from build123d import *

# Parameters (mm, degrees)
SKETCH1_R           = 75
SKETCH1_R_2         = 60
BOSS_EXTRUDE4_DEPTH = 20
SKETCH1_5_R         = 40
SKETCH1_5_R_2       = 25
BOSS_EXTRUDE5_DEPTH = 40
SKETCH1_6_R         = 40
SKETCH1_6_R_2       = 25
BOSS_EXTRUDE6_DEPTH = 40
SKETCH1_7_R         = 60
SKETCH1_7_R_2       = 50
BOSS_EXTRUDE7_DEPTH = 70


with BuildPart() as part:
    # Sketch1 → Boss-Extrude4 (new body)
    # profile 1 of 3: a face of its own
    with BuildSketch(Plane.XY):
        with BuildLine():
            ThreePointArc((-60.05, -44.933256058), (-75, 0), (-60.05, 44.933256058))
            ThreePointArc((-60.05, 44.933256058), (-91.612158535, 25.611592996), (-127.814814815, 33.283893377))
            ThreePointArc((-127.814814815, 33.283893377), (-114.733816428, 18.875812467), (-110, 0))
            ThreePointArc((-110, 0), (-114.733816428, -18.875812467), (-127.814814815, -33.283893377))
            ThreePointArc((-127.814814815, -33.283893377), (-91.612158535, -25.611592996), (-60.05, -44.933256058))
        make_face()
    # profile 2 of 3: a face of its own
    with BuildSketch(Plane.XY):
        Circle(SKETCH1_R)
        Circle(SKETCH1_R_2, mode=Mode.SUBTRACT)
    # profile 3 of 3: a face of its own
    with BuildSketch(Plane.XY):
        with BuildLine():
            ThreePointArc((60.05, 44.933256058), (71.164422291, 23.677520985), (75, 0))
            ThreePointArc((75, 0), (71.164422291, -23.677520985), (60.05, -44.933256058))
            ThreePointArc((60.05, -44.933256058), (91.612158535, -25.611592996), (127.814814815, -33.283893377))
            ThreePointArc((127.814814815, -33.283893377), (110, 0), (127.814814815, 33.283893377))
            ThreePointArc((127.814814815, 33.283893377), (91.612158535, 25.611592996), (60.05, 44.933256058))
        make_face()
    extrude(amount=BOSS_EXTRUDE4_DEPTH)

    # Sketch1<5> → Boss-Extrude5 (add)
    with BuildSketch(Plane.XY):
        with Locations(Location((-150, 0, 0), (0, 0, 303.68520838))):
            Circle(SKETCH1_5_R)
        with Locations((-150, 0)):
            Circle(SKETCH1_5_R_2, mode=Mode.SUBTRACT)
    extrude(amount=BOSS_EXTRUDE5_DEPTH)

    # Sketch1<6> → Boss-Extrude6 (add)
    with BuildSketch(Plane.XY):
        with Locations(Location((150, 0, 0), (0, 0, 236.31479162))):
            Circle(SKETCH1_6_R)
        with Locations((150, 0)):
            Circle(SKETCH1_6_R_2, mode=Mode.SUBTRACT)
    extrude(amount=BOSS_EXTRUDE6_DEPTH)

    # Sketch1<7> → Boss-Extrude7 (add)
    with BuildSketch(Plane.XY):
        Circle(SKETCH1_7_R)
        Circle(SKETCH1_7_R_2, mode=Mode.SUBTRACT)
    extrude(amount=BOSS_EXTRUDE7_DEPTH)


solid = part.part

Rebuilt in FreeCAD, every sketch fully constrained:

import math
import FreeCAD as App
import Part
import Sketcher
from FreeCAD import Vector
Q = App.Units.Quantity

doc = App.newDocument("Part")
params = doc.addObject("Spreadsheet::Sheet", "Params")
for row, (alias, value) in enumerate([
    ("sketch1_diameter", "120 mm"),
    ("sketch1_radius", "50 mm"),
    ("sketch1_radius2", "40 mm"),
    ("sketch1_radius3", "75 mm"),
    ("pad1_length", "20 mm"),
    ("sketch2_diameter", "80 mm"),
    ("sketch2_diameter2", "50 mm"),
    ("pad2_length", "40 mm"),
    ("sketch3_diameter", "80 mm"),
    ("sketch3_diameter2", "50 mm"),
    ("pad3_length", "40 mm"),
    ("sketch4_diameter", "120 mm"),
    ("sketch4_diameter2", "100 mm"),
    ("pad4_length", "70 mm"),
], start=1):
    params.set(f"A{row}", alias)
    params.set(f"B{row}", "=" + value)
    params.setAlias(f"B{row}", alias)

body = doc.addObject("PartDesign::Body", "Body")

# Sketch on XY plane
sketch1 = doc.addObject("Sketcher::SketchObject", "Sketch")
body.addObject(sketch1)
sketch1.AttachmentSupport = (doc.XY_Plane, [""])
sketch1.MapMode = "FlatFace"
sketch1.addGeometry(Part.ArcOfCircle(Part.Circle(Vector(-100.083333, 74.88876, 0), Vector(0, 0, 1), 50), math.radians(-123.685208), math.radians(-36.806188)), False)
sketch1.addGeometry(Part.ArcOfCircle(Part.Circle(Vector(-150, 0, 0), Vector(0, 0, 1), 40), math.radians(0), math.radians(56.314792)), False)
sketch1.addGeometry(Part.ArcOfCircle(Part.Circle(Vector(-150, 0, 0), Vector(0, 0, 1), 40), math.radians(-56.314792), math.radians(0)), False)
sketch1.addGeometry(Part.ArcOfCircle(Part.Circle(Vector(-100.083333, -74.88876, 0), Vector(0, 0, 1), 50), math.radians(36.806188), math.radians(123.685208)), False)
sketch1.addGeometry(Part.ArcOfCircle(Part.Circle(Vector(0, 0, 0), Vector(0, 0, 1), 75), math.radians(-143.193812), math.radians(-36.806188)), False)
sketch1.addGeometry(Part.ArcOfCircle(Part.Circle(Vector(100.083333, -74.88876, 0), Vector(0, 0, 1), 50), math.radians(56.314792), math.radians(143.193812)), False)
sketch1.addGeometry(Part.ArcOfCircle(Part.Circle(Vector(150, 0, 0), Vector(0, 0, 1), 40), math.radians(123.685208), math.radians(236.314792)), False)
sketch1.addGeometry(Part.ArcOfCircle(Part.Circle(Vector(100.083333, 74.88876, 0), Vector(0, 0, 1), 50), math.radians(-143.193812), math.radians(-56.314792)), False)
sketch1.addGeometry(Part.ArcOfCircle(Part.Circle(Vector(0, 0, 0), Vector(0, 0, 1), 75), math.radians(36.806188), math.radians(143.193812)), False)
sketch1.addGeometry(Part.Circle(Vector(0, 0, 0), Vector(0, 0, 1), 60), False)
sketch1.addConstraint(Sketcher.Constraint("Tangent", 0, 1, 1, 2))
sketch1.addConstraint(Sketcher.Constraint("Tangent", 1, 1, 2, 2))
sketch1.addConstraint(Sketcher.Constraint("Tangent", 2, 1, 3, 2))
sketch1.addConstraint(Sketcher.Constraint("Tangent", 3, 1, 4, 1))
sketch1.addConstraint(Sketcher.Constraint("Tangent", 4, 2, 5, 2))
sketch1.addConstraint(Sketcher.Constraint("Tangent", 5, 1, 6, 2))
sketch1.addConstraint(Sketcher.Constraint("Tangent", 6, 1, 7, 2))
sketch1.addConstraint(Sketcher.Constraint("Tangent", 7, 1, 8, 1))
sketch1.addConstraint(Sketcher.Constraint("Tangent", 8, 2, 0, 2))
sketch1.addConstraint(Sketcher.Constraint("Coincident", 4, 3, -1, 1))
sketch1.addConstraint(Sketcher.Constraint("Coincident", 8, 3, -1, 1))
sketch1.addConstraint(Sketcher.Constraint("Coincident", 9, 3, -1, 1))
sketch1.addConstraint(Sketcher.Constraint("Equal", 1, 2))
sketch1.addConstraint(Sketcher.Constraint("Equal", 0, 3))
sketch1.addConstraint(Sketcher.Constraint("Equal", 3, 5))
sketch1.addConstraint(Sketcher.Constraint("Equal", 2, 6))
sketch1.addConstraint(Sketcher.Constraint("Equal", 5, 7))
sketch1.addConstraint(Sketcher.Constraint("Equal", 4, 8))
sketch1.addConstraint(Sketcher.Constraint("Symmetric", 1, 3, 6, 3, -1, 1))
sketch1.addConstraint(Sketcher.Constraint("PointOnObject", 1, 3, -1))
sketch1.addConstraint(Sketcher.Constraint("PointOnObject", 1, 1, -1))
sketch1.addConstraint(Sketcher.Constraint("Diameter", 9, Q("120 mm")))
sketch1.addConstraint(Sketcher.Constraint("Radius", 0, Q("50 mm")))
sketch1.addConstraint(Sketcher.Constraint("Radius", 1, Q("40 mm")))
sketch1.addConstraint(Sketcher.Constraint("Radius", 4, Q("75 mm")))
sketch1.addConstraint(Sketcher.Constraint("DistanceX", 1, 3, -1, 1, Q("150 mm")))
sketch1.setExpression("Constraints[21]", "Params.sketch1_diameter")
sketch1.setExpression("Constraints[22]", "Params.sketch1_radius")
sketch1.setExpression("Constraints[23]", "Params.sketch1_radius2")
sketch1.setExpression("Constraints[24]", "Params.sketch1_radius3")
pad1 = doc.addObject("PartDesign::Pad", "Pad")
body.addObject(pad1)
pad1.Profile = sketch1
pad1.setExpression("Length", "Params.pad1_length")

# Sketch on XY plane
sketch2 = doc.addObject("Sketcher::SketchObject", "Sketch001")
body.addObject(sketch2)
sketch2.AttachmentSupport = (doc.XY_Plane, [""])
sketch2.MapMode = "FlatFace"
sketch2.addGeometry(Part.Circle(Vector(-150, 0, 0), Vector(0, 0, 1), 40), False)
sketch2.addGeometry(Part.Circle(Vector(-150, 0, 0), Vector(0, 0, 1), 25), False)
sketch2.addConstraint(Sketcher.Constraint("Coincident", 1, 3, 0, 3))
sketch2.addConstraint(Sketcher.Constraint("PointOnObject", 0, 3, -1))
sketch2.addConstraint(Sketcher.Constraint("Diameter", 0, Q("80 mm")))
sketch2.addConstraint(Sketcher.Constraint("Diameter", 1, Q("50 mm")))
sketch2.addConstraint(Sketcher.Constraint("DistanceX", 0, 3, -1, 1, Q("150 mm")))
sketch2.setExpression("Constraints[2]", "Params.sketch2_diameter")
sketch2.setExpression("Constraints[3]", "Params.sketch2_diameter2")
pad2 = doc.addObject("PartDesign::Pad", "Pad001")
body.addObject(pad2)
pad2.Profile = sketch2
pad2.setExpression("Length", "Params.pad2_length")

# Sketch on XY plane
sketch3 = doc.addObject("Sketcher::SketchObject", "Sketch002")
body.addObject(sketch3)
sketch3.AttachmentSupport = (doc.XY_Plane, [""])
sketch3.MapMode = "FlatFace"
sketch3.addGeometry(Part.Circle(Vector(150, 0, 0), Vector(0, 0, 1), 40), False)
sketch3.addGeometry(Part.Circle(Vector(150, 0, 0), Vector(0, 0, 1), 25), False)
sketch3.addConstraint(Sketcher.Constraint("Coincident", 1, 3, 0, 3))
sketch3.addConstraint(Sketcher.Constraint("PointOnObject", 0, 3, -1))
sketch3.addConstraint(Sketcher.Constraint("Diameter", 0, Q("80 mm")))
sketch3.addConstraint(Sketcher.Constraint("Diameter", 1, Q("50 mm")))
sketch3.addConstraint(Sketcher.Constraint("DistanceX", -1, 1, 0, 3, Q("150 mm")))
sketch3.setExpression("Constraints[2]", "Params.sketch3_diameter")
sketch3.setExpression("Constraints[3]", "Params.sketch3_diameter2")
pad3 = doc.addObject("PartDesign::Pad", "Pad002")
body.addObject(pad3)
pad3.Profile = sketch3
pad3.setExpression("Length", "Params.pad3_length")

# Sketch on XY plane
sketch4 = doc.addObject("Sketcher::SketchObject", "Sketch003")
body.addObject(sketch4)
sketch4.AttachmentSupport = (doc.XY_Plane, [""])
sketch4.MapMode = "FlatFace"
sketch4.addGeometry(Part.Circle(Vector(0, 0, 0), Vector(0, 0, 1), 60), False)
sketch4.addGeometry(Part.Circle(Vector(0, 0, 0), Vector(0, 0, 1), 50), False)
sketch4.addConstraint(Sketcher.Constraint("Coincident", 0, 3, -1, 1))
sketch4.addConstraint(Sketcher.Constraint("Coincident", 1, 3, -1, 1))
sketch4.addConstraint(Sketcher.Constraint("Diameter", 0, Q("120 mm")))
sketch4.addConstraint(Sketcher.Constraint("Diameter", 1, Q("100 mm")))
sketch4.setExpression("Constraints[2]", "Params.sketch4_diameter")
sketch4.setExpression("Constraints[3]", "Params.sketch4_diameter2")
pad4 = doc.addObject("PartDesign::Pad", "Pad003")
body.addObject(pad4)
pad4.Profile = sketch4
pad4.setExpression("Length", "Params.pad4_length")

doc.recompute()
